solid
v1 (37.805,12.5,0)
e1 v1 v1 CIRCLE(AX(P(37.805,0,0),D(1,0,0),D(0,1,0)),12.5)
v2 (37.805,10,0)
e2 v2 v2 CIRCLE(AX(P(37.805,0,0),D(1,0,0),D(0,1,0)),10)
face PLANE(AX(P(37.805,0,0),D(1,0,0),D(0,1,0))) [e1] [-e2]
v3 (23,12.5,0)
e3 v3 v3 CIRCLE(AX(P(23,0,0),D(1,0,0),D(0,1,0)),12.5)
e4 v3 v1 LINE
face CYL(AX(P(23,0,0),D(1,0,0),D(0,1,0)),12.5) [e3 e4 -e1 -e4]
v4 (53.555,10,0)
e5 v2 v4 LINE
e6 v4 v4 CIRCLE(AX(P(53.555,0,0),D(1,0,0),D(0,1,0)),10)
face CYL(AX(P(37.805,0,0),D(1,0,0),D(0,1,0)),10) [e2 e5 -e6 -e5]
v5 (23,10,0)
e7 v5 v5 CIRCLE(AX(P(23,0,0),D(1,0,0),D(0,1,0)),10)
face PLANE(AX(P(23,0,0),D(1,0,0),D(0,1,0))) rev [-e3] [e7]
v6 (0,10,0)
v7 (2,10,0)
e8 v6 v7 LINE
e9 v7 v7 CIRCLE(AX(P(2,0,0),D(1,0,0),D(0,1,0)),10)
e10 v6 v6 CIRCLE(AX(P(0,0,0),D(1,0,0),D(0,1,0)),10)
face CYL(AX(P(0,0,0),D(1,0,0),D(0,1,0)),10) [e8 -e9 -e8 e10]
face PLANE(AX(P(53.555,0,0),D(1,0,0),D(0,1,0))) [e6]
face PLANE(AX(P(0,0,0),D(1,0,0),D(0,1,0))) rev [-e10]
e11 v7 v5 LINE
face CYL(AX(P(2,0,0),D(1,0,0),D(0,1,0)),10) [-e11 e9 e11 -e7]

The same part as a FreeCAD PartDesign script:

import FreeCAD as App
import Part
import Sketcher
from FreeCAD import Vector


def add_polygon(sketch, points):
    """Adds a closed chain of lines whose ends are joined by coincident constraints."""
    first, n = sketch.GeometryCount, len(points)
    for a, b in zip(points, points[1:] + points[:1]):
        sketch.addGeometry(Part.LineSegment(App.Vector(*a, 0), App.Vector(*b, 0)), False)
    for i in range(n):
        sketch.addConstraint(Sketcher.Constraint("Coincident", first + i, 2, first + (i + 1) % n, 1))

doc = App.newDocument("Part")
body = doc.addObject("PartDesign::Body", "Body")

sketch1 = body.newObject("Sketcher::SketchObject", "Sketch")
sketch1.AttachmentSupport = (doc.getObject("XY_Plane"), [""])
sketch1.MapMode = "FlatFace"
add_polygon(sketch1, [(0, 10), (0, 0), (53.555, 0), (53.555, 10), (37.805, 10), (37.805, 12.5), (23, 12.5), (23, 10)])
sketch1.addConstraint(Sketcher.Constraint("Vertical", 0))
sketch1.addConstraint(Sketcher.Constraint("Horizontal", 1))
sketch1.addConstraint(Sketcher.Constraint("Vertical", 2))
sketch1.addConstraint(Sketcher.Constraint("Horizontal", 3))
sketch1.addConstraint(Sketcher.Constraint("Vertical", 4))
sketch1.addConstraint(Sketcher.Constraint("Horizontal", 5))
sketch1.addConstraint(Sketcher.Constraint("Vertical", 6))
sketch1.addConstraint(Sketcher.Constraint("Horizontal", 7))
sketch1.addConstraint(Sketcher.Constraint("Coincident", 0, 2, -1, 1))
sketch1.addConstraint(Sketcher.Constraint("Horizontal", 3, 2, 6, 2))
sketch1.addConstraint(Sketcher.Constraint("DistanceX", 3, 2, 3, 1, 15.75))
sketch1.addConstraint(Sketcher.Constraint("DistanceX", 7, 2, 7, 1, 23.0))
sketch1.addConstraint(Sketcher.Constraint("DistanceY", 0, 2, 0, 1, 10.0))
sketch1.addConstraint(Sketcher.Constraint("DistanceY", 4, 1, 4, 2, 2.5))
sketch1.addConstraint(Sketcher.Constraint("DistanceX", -1, 1, 3, 2, 37.805))
revolution = body.newObject("PartDesign::Revolution", "Revolution")
revolution.Profile = sketch1
revolution.ReferenceAxis = (sketch1, ["H_Axis"])
revolution.Angle = 360

doc.recompute()
